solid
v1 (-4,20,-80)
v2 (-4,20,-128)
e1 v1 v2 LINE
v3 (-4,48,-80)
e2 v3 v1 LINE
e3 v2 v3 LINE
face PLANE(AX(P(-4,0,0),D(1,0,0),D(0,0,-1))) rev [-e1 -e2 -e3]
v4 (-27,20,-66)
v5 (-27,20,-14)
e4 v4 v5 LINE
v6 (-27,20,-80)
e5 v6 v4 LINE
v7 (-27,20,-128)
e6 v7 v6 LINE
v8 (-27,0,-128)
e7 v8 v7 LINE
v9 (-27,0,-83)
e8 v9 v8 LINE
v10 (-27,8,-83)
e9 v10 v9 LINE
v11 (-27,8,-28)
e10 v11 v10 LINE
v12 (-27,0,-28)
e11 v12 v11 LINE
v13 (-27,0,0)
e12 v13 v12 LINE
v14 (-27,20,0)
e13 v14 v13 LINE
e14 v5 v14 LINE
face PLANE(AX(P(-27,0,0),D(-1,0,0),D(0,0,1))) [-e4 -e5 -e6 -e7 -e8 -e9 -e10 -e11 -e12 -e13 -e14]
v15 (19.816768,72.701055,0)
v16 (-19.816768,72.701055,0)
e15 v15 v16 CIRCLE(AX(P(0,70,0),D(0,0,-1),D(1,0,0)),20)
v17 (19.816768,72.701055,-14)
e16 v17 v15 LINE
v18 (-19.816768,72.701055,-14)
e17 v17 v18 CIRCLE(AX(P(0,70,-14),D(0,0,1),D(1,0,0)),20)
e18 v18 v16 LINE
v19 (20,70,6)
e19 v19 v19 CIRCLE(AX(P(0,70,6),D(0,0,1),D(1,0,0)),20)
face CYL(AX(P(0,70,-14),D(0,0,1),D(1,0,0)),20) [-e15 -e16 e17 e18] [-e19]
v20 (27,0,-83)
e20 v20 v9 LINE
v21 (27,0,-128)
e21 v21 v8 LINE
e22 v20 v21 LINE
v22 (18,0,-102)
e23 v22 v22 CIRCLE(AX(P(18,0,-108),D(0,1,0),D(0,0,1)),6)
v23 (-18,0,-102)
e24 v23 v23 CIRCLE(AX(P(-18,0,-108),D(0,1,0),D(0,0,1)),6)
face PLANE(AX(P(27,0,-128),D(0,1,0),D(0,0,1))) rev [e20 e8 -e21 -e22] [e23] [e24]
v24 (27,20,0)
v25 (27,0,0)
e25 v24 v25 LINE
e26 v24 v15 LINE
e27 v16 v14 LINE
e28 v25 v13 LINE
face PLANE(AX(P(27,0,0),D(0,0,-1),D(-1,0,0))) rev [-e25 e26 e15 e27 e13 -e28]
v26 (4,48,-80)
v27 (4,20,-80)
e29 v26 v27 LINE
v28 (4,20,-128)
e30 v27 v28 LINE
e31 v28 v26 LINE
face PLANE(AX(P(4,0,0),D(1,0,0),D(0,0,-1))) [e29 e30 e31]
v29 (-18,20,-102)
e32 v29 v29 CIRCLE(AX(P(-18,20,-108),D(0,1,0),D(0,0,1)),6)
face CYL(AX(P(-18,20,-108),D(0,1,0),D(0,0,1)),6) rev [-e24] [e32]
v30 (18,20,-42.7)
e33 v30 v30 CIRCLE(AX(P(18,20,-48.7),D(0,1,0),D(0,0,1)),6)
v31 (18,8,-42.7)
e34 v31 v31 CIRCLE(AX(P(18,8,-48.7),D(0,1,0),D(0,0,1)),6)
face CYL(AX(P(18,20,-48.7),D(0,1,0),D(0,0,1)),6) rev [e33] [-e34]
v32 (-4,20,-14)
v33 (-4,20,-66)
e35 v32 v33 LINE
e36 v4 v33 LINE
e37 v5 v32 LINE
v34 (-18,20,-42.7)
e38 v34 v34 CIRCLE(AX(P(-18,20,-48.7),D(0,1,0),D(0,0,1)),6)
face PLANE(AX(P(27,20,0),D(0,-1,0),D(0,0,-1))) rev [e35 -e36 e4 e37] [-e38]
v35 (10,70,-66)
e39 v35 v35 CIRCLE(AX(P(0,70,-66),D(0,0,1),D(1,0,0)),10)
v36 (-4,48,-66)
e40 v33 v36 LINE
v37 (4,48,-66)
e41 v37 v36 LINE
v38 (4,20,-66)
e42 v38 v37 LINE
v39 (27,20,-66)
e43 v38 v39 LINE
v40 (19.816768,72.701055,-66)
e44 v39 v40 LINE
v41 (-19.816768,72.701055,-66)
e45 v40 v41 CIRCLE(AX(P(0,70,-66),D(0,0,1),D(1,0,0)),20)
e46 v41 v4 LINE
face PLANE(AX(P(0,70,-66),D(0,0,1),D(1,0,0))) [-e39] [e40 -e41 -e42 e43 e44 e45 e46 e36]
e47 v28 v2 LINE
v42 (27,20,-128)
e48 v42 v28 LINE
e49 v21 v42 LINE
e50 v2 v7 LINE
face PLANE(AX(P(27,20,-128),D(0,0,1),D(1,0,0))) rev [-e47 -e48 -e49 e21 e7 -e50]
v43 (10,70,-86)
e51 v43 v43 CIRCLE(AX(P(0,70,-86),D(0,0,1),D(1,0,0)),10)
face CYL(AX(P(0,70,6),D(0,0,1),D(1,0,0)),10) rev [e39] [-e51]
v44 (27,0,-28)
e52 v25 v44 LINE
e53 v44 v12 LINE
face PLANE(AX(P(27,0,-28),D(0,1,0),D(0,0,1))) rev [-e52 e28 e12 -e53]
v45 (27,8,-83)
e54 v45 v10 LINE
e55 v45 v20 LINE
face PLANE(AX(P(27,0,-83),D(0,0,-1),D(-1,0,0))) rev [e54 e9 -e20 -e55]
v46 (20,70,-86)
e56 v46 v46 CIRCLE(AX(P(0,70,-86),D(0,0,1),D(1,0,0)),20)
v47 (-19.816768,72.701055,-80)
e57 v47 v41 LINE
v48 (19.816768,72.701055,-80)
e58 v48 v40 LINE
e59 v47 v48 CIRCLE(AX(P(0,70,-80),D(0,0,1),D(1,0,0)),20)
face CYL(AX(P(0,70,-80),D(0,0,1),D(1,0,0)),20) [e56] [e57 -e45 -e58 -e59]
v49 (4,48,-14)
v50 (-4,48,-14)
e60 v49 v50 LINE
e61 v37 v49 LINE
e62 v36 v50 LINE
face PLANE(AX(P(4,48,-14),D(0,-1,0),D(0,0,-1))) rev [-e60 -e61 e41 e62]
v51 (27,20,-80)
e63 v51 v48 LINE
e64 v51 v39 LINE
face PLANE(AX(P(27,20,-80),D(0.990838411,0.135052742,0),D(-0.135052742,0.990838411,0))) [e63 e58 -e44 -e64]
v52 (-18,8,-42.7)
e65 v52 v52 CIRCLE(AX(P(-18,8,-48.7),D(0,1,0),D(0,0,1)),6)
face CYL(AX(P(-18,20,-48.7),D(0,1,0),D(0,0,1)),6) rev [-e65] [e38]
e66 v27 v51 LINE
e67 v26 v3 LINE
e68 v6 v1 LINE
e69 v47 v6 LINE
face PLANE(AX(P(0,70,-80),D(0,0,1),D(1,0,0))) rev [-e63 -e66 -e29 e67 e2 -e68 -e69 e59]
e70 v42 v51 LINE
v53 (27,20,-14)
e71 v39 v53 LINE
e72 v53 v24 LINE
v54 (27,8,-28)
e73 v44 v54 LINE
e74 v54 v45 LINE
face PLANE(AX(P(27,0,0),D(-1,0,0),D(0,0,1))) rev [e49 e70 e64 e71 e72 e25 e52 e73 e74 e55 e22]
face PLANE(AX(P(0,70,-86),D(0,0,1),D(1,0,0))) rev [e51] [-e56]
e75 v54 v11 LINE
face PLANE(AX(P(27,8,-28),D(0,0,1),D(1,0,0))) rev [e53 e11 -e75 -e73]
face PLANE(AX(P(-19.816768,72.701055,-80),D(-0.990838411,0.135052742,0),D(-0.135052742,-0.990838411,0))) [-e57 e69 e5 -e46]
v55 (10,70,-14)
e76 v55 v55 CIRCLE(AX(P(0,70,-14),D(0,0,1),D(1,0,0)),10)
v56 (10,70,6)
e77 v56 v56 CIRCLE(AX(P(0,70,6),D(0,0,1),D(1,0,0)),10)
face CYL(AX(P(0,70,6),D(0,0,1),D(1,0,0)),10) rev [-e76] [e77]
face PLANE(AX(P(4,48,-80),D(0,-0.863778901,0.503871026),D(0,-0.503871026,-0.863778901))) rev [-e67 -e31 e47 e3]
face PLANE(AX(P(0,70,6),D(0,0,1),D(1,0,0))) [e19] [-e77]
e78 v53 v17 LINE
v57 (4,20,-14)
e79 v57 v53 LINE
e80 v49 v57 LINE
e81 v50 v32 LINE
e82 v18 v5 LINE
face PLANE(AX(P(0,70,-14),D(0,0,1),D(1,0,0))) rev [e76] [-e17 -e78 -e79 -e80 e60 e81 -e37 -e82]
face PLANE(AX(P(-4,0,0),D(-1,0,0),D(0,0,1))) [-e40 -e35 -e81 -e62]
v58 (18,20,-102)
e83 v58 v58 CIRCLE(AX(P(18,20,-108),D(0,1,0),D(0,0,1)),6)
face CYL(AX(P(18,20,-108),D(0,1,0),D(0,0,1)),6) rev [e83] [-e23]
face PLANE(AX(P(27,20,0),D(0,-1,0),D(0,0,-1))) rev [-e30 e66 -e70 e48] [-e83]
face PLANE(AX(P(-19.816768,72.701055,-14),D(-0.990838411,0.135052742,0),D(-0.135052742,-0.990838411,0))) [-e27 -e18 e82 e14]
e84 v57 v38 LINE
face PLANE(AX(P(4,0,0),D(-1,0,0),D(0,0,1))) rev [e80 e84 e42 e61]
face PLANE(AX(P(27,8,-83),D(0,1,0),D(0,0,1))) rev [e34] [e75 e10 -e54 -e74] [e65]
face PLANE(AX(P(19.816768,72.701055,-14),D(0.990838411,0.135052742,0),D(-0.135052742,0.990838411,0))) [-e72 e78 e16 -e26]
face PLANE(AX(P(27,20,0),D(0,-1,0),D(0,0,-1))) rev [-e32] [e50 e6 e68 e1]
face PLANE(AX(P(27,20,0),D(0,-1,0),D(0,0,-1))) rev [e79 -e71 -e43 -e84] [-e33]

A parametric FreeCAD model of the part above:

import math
import FreeCAD as App
import Part
import Sketcher
from FreeCAD import Vector
Q = App.Units.Quantity


def add_polygon(sketch, points):
    """Adds a closed chain of lines whose ends are joined by coincident constraints."""
    first, n = sketch.GeometryCount, len(points)
    for a, b in zip(points, points[1:] + points[:1]):
        sketch.addGeometry(Part.LineSegment(App.Vector(*a, 0), App.Vector(*b, 0)), False)
    for i in range(n):
        sketch.addConstraint(Sketcher.Constraint("Coincident", first + i, 2, first + (i + 1) % n, 1))

doc = App.newDocument("Part")
body = doc.addObject("PartDesign::Body", "Body")

sketch1 = body.newObject("Sketcher::SketchObject", "Sketch")
sketch1.AttachmentSupport = (doc.getObject("YZ_Plane"), [""])
sketch1.MapMode = "FlatFace"
add_polygon(sketch1, [(20, 0), (0, 0), (0, -28), (8, -28), (8, -83), (0, -83), (0, -128), (20, -128)])
sketch1.addConstraint([
    Sketcher.Constraint("Horizontal", 0),
    Sketcher.Constraint("Vertical", 1),
    Sketcher.Constraint("Horizontal", 2),
    Sketcher.Constraint("Vertical", 3),
    Sketcher.Constraint("Horizontal", 4),
    Sketcher.Constraint("Vertical", 5),
    Sketcher.Constraint("Horizontal", 6),
    Sketcher.Constraint("Vertical", 7),
    Sketcher.Constraint("Coincident", 0, 2, -1, 1),
    Sketcher.Constraint("PointOnObject", 4, 2, -2),
    Sketcher.Constraint("DistanceX", 0, 2, 0, 1, Q("20 mm")),
    Sketcher.Constraint("DistanceX", 2, 1, 2, 2, Q("8 mm")),
    Sketcher.Constraint("DistanceY", 1, 2, 1, 1, Q("28 mm")),
    Sketcher.Constraint("DistanceY", 3, 2, 3, 1, Q("55 mm")),
    Sketcher.Constraint("DistanceY", 5, 2, 5, 1, Q("45 mm")),
])
pad1 = body.newObject("PartDesign::Pad", "Pad")
pad1.Profile = sketch1
pad1.Length = 54
pad1.Midplane = True
body2 = doc.addObject("PartDesign::Body", "Body001")

sketch2 = body2.newObject("Sketcher::SketchObject", "Sketch001")
sketch2.AttachmentSupport = (doc.getObject("XY_Plane001"), [""])
sketch2.MapMode = "FlatFace"
sketch2.addGeometry(Part.Circle(Vector(0, 70, 0), Vector(0, 0, 1), 20), False)
sketch2.addConstraint([
    Sketcher.Constraint("PointOnObject", 0, 3, -2),
    Sketcher.Constraint("Diameter", 0, Q("40 mm")),
    Sketcher.Constraint("DistanceY", -1, 1, 0, 3, Q("70 mm")),
])
pad2 = body2.newObject("PartDesign::Pad", "Pad001")
pad2.Profile = sketch2
pad2.Type = "TwoLengths"
pad2.Length = 6
pad2.Length2 = 14
body.AllowCompound = True
doc.recompute()

boolean = body.newObject("PartDesign::Boolean", "Boolean")
boolean.Type = "Fuse"
boolean.addObjects([body2])

sketch3 = body.newObject("Sketcher::SketchObject", "Sketch002")
sketch3.AttachmentSupport = (doc.getObject("XY_Plane"), [""])
sketch3.MapMode = "FlatFace"
sketch3.addGeometry([
    Part.LineSegment(Vector(-27, 20, 0), Vector(27, 20, 0)),
    Part.LineSegment(Vector(27, 20, 0), Vector(19.816768, 72.701055, 0)),
    Part.ArcOfCircle(Part.Circle(Vector(0, 70, 0), Vector(0, 0, 1), 20), math.radians(172.23833), math.radians(367.76167)),
    Part.LineSegment(Vector(-19.816768, 72.701055, 0), Vector(-27, 20, 0)),
], False)
sketch3.addConstraint([
    Sketcher.Constraint("Coincident", 0, 2, 1, 1),
    Sketcher.Constraint("Tangent", 1, 2, 2, 2),
    Sketcher.Constraint("Tangent", 2, 1, 3, 1),
    Sketcher.Constraint("Coincident", 3, 2, 0, 1),
    Sketcher.Constraint("Horizontal", 0),
    Sketcher.Constraint("Symmetric", 1, 2, 2, 1, -2),
    Sketcher.Constraint("Radius", 2, Q("20 mm")),
    Sketcher.Constraint("DistanceX", 0, 1, 0, 2, Q("54 mm")),
    Sketcher.Constraint("DistanceY", -1, 1, 2, 3, Q("70 mm")),
    Sketcher.Constraint("DistanceY", -1, 1, 0, 2, Q("20 mm")),
])
pad3 = body.newObject("PartDesign::Pad", "Pad002")
pad3.Profile = sketch3
pad3.Length = 14
pad3.Reversed = True

sketch4 = body.newObject("Sketcher::SketchObject", "Sketch003")
sketch4.AttachmentSupport = (doc.getObject("XY_Plane"), [""])
sketch4.MapMode = "FlatFace"
sketch4.AttachmentOffset = App.Placement(Vector(0, 0, -80), App.Rotation())
sketch4.addGeometry([
    Part.LineSegment(Vector(-27, 20, 0), Vector(27, 20, 0)),
    Part.LineSegment(Vector(27, 20, 0), Vector(19.816768, 72.701055, 0)),
    Part.ArcOfCircle(Part.Circle(Vector(0, 70, 0), Vector(0, 0, 1), 20), math.radians(7.76167), math.radians(172.23833)),
    Part.LineSegment(Vector(-19.816768, 72.701055, 0), Vector(-27, 20, 0)),
], False)
sketch4.addConstraint([
    Sketcher.Constraint("Coincident", 0, 2, 1, 1),
    Sketcher.Constraint("Tangent", 1, 2, 2, 1),
    Sketcher.Constraint("Tangent", 2, 2, 3, 1),
    Sketcher.Constraint("Coincident", 3, 2, 0, 1),
    Sketcher.Constraint("Horizontal", 0),
    Sketcher.Constraint("Symmetric", 1, 2, 2, 2, -2),
    Sketcher.Constraint("Radius", 2, Q("20 mm")),
    Sketcher.Constraint("DistanceX", 0, 1, 0, 2, Q("54 mm")),
    Sketcher.Constraint("DistanceY", -1, 1, 2, 3, Q("70 mm")),
    Sketcher.Constraint("DistanceY", -1, 1, 0, 2, Q("20 mm")),
])
pad4 = body.newObject("PartDesign::Pad", "Pad003")
pad4.Profile = sketch4
pad4.Length = 14

sketch5 = body.newObject("Sketcher::SketchObject", "Sketch004")
sketch5.AttachmentSupport = (doc.getObject("XY_Plane"), [""])
sketch5.MapMode = "FlatFace"
sketch5.AttachmentOffset = App.Placement(Vector(0, 0, -86), App.Rotation())
sketch5.addGeometry(Part.Circle(Vector(0, 70, 0), Vector(0, 0, 1), 20), False)
sketch5.addConstraint([
    Sketcher.Constraint("PointOnObject", 0, 3, -2),
    Sketcher.Constraint("Diameter", 0, Q("40 mm")),
    Sketcher.Constraint("DistanceY", -1, 1, 0, 3, Q("70 mm")),
])
pad5 = body.newObject("PartDesign::Pad", "Pad004")
pad5.Profile = sketch5
pad5.Length = 20

sketch6 = body.newObject("Sketcher::SketchObject", "Sketch005")
sketch6.AttachmentSupport = (doc.getObject("XY_Plane"), [""])
sketch6.MapMode = "FlatFace"
sketch6.AttachmentOffset = App.Placement(Vector(0, 0, 6), App.Rotation())
sketch6.addGeometry(Part.Circle(Vector(0, 70, 0), Vector(0, 0, 1), 10), False)
sketch6.addConstraint([
    Sketcher.Constraint("PointOnObject", 0, 3, -2),
    Sketcher.Constraint("Diameter", 0, Q("20 mm")),
    Sketcher.Constraint("DistanceY", -1, 1, 0, 3, Q("70 mm")),
])
doc.recompute()
hole = body.newObject("PartDesign::Hole", "Hole")
hole.Profile = sketch6
hole.ThreadType = "None"
hole.Diameter = 20
hole.DepthType = "ThroughAll"

sketch7 = body.newObject("Sketcher::SketchObject", "Sketch006")
sketch7.AttachmentSupport = (doc.getObject("YZ_Plane"), [""])
sketch7.MapMode = "FlatFace"
add_polygon(sketch7, [(48, -14), (20, -14), (20, -66), (48, -66)])
sketch7.addConstraint([
    Sketcher.Constraint("Horizontal", 0),
    Sketcher.Constraint("Vertical", 1),
    Sketcher.Constraint("Horizontal", 2),
    Sketcher.Constraint("Vertical", 3),
    Sketcher.Constraint("DistanceX", 0, 2, 0, 1, Q("28 mm")),
    Sketcher.Constraint("DistanceY", 1, 2, 1, 1, Q("52 mm")),
    Sketcher.Constraint("DistanceX", -1, 1, 0, 2, Q("20 mm")),
    Sketcher.Constraint("DistanceY", 0, 2, -1, 1, Q("14 mm")),
])
pad6 = body.newObject("PartDesign::Pad", "Pad005")
pad6.Profile = sketch7
pad6.Length = 8
pad6.Midplane = True

sketch8 = body.newObject("Sketcher::SketchObject", "Sketch007")
sketch8.AttachmentSupport = (doc.getObject("YZ_Plane"), [""])
sketch8.MapMode = "FlatFace"
add_polygon(sketch8, [(20, -128), (48, -80), (20, -80)])
sketch8.addConstraint([
    Sketcher.Constraint("Horizontal", 1),
    Sketcher.Constraint("Vertical", 2),
    Sketcher.Constraint("DistanceX", 1, 2, 1, 1, Q("28 mm")),
    Sketcher.Constraint("DistanceY", 2, 2, 2, 1, Q("48 mm")),
    Sketcher.Constraint("DistanceX", -1, 1, 0, 2, Q("48 mm")),
    Sketcher.Constraint("DistanceY", 0, 2, -1, 1, Q("80 mm")),
])
pad7 = body.newObject("PartDesign::Pad", "Pad006")
pad7.Profile = sketch8
pad7.Length = 8
pad7.Midplane = True

sketch9 = body.newObject("Sketcher::SketchObject", "Sketch008")
sketch9.AttachmentSupport = (doc.getObject("XZ_Plane"), [""])
sketch9.MapMode = "FlatFace"
sketch9.AttachmentOffset = App.Placement(Vector(0, 0, -20), App.Rotation())
sketch9.addGeometry([
    Part.Circle(Vector(18, -108, 0), Vector(0, 0, 1), 6),
    Part.Circle(Vector(-18, -108, 0), Vector(0, 0, 1), 6),
], False)
sketch9.addConstraint([
    Sketcher.Constraint("Equal", 0, 1),
    Sketcher.Constraint("Symmetric", 0, 3, 1, 3, -2),
    Sketcher.Constraint("Diameter", 0, Q("12 mm")),
    Sketcher.Constraint("DistanceX", -1, 1, 0, 3, Q("18 mm")),
    Sketcher.Constraint("DistanceY", 0, 3, -1, 1, Q("108 mm")),
])
doc.recompute()
hole2 = body.newObject("PartDesign::Hole", "Hole001")
hole2.Profile = sketch9
hole2.ThreadType = "None"
hole2.Diameter = 12
hole2.DepthType = "ThroughAll"
hole2.Reversed = True
doc.recompute()

linearpattern = body.newObject("PartDesign::LinearPattern", "LinearPattern")
linearpattern.Originals = [hole2]
linearpattern.Direction = (doc.getObject("Z_Axis"), [""])
linearpattern.Mode = "offset"
linearpattern.Offset = 59.3
linearpattern.Occurrences = 2
body.Tip = linearpattern

doc.recompute()
